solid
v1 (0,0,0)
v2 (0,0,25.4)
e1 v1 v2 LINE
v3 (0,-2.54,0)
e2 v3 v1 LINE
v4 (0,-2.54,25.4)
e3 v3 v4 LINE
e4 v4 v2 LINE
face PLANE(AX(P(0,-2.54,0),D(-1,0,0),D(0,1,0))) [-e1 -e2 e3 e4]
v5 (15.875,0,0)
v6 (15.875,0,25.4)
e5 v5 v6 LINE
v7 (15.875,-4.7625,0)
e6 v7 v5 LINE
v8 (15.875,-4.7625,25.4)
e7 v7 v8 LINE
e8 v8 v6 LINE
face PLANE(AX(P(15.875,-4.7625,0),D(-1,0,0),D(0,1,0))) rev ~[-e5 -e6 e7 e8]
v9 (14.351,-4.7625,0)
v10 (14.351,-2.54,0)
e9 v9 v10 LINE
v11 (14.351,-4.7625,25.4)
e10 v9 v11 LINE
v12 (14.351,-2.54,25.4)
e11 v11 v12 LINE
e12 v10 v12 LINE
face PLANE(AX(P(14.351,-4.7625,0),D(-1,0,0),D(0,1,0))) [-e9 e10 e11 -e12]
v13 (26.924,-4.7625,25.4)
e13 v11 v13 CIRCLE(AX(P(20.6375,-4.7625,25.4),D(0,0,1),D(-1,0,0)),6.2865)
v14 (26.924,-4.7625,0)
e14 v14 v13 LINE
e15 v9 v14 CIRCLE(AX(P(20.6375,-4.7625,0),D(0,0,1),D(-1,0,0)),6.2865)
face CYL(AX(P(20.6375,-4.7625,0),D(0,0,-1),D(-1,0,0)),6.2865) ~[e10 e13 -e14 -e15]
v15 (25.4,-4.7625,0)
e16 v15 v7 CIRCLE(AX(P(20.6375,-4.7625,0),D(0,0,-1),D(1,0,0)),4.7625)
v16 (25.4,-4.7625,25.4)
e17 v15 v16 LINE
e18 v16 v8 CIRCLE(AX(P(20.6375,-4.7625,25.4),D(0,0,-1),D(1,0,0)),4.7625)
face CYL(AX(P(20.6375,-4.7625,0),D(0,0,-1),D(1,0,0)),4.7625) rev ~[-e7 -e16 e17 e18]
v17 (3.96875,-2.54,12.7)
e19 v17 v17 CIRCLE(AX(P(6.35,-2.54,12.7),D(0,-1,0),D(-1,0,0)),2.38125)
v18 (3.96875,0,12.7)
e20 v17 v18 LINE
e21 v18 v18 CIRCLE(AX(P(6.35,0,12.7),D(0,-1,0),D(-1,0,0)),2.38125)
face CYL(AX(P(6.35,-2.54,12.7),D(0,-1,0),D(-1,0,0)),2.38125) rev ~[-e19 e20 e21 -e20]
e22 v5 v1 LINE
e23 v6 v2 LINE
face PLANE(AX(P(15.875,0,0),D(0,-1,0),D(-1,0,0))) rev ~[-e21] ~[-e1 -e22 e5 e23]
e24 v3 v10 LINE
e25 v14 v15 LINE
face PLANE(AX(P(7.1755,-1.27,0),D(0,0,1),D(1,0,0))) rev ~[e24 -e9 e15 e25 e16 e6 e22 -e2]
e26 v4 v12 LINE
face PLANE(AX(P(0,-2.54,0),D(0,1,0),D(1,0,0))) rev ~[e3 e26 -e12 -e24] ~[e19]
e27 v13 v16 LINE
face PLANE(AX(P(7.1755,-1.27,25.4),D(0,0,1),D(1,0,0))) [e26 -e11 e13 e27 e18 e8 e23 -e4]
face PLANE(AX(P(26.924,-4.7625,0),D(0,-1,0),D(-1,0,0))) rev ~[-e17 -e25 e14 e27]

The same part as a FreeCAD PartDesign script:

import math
import FreeCAD as App
import Part
import Sketcher
from FreeCAD import Vector
Q = App.Units.Quantity

doc = App.newDocument("Part")
body = doc.addObject("PartDesign::Body", "Body")

sketch1 = doc.addObject("Sketcher::SketchObject", "Sketch")
body.addObject(sketch1)
sketch1.AttachmentSupport = (doc.XY_Plane, [""])
sketch1.MapMode = "FlatFace"
sketch1.addGeometry([
    Part.LineSegment(Vector(0, 0, 0), Vector(0, -2.5, 0)),
    Part.LineSegment(Vector(0, -2.5, 0), Vector(14.4, -2.5, 0)),
    Part.LineSegment(Vector(14.4, -2.5, 0), Vector(14.4, -4.8, 0)),
    Part.ArcOfCircle(Part.Circle(Vector(20.6, -4.8, 0), Vector(0, 0, 1), 6.3), math.radians(180), math.radians(360)),
    Part.LineSegment(Vector(26.9, -4.8, 0), Vector(25.4, -4.8, 0)),
    Part.ArcOfCircle(Part.Circle(Vector(20.6, -4.8, 0), Vector(0, 0, 1), 4.8), math.radians(180), math.radians(360)),
    Part.LineSegment(Vector(15.9, -4.8, 0), Vector(15.9, 0, 0)),
    Part.LineSegment(Vector(15.9, 0, 0), Vector(0, 0, 0)),
], False)
sketch1.addConstraint([
    Sketcher.Constraint("Coincident", 0, 2, 1, 1),
    Sketcher.Constraint("Coincident", 1, 2, 2, 1),
    Sketcher.Constraint("Tangent", 2, 2, 3, 1),
    Sketcher.Constraint("Coincident", 3, 2, 4, 1),
    Sketcher.Constraint("Coincident", 4, 2, 5, 2),
    Sketcher.Constraint("Tangent", 5, 1, 6, 1),
    Sketcher.Constraint("Coincident", 6, 2, 7, 1),
    Sketcher.Constraint("Coincident", 7, 2, 0, 1),
    Sketcher.Constraint("Vertical", 0),
    Sketcher.Constraint("Horizontal", 1),
    Sketcher.Constraint("Vertical", 2),
    Sketcher.Constraint("Horizontal", 4),
    Sketcher.Constraint("Vertical", 6),
    Sketcher.Constraint("Horizontal", 7),
    Sketcher.Constraint("Coincident", 7, 2, -1, 1),
    Sketcher.Constraint("Coincident", 5, 3, 3, 3),
    Sketcher.Constraint("Horizontal", 2, 2, 3, 2),
    Sketcher.Constraint("DistanceY", 0, 2, 0, 1, Q("0.1 in")),
    Sketcher.Constraint("DistanceX", -1, 1, 4, 2, Q("1 in")),
    Sketcher.Constraint("Radius", 5, Q("0.1875 in")),
    Sketcher.Constraint("DistanceX", 4, 2, 4, 1, Q("0.06 in")),
    Sketcher.Constraint("DistanceY", 6, 1, 6, 2, Q("0.1875 in")),
])
pad1 = doc.addObject("PartDesign::Pad", "Pad")
body.addObject(pad1)
pad1.Profile = sketch1
pad1.Length = Q("1 in")

sketch2 = doc.addObject("Sketcher::SketchObject", "Sketch001")
body.addObject(sketch2)
sketch2.AttachmentSupport = (doc.XZ_Plane, [""])
sketch2.MapMode = "FlatFace"
sketch2.AttachmentOffset = App.Placement(Vector(0, 0, 0.1 * 25.4), App.Rotation())
sketch2.addGeometry(Part.Circle(Vector(6.3, 12.7, 0), Vector(0, 0, 1), 2.4), False)
sketch2.addConstraint([
    Sketcher.Constraint("Diameter", 0, Q("0.1875 in")),
    Sketcher.Constraint("DistanceY", -1, 1, 0, 3, Q("0.5 in")),
    Sketcher.Constraint("DistanceX", -1, 1, 0, 3, Q("0.25 in")),
])
pocket1 = doc.addObject("PartDesign::Pocket", "Pocket")
body.addObject(pocket1)
pocket1.Profile = sketch2
pocket1.Length = Q("1 in")

doc.recompute()
